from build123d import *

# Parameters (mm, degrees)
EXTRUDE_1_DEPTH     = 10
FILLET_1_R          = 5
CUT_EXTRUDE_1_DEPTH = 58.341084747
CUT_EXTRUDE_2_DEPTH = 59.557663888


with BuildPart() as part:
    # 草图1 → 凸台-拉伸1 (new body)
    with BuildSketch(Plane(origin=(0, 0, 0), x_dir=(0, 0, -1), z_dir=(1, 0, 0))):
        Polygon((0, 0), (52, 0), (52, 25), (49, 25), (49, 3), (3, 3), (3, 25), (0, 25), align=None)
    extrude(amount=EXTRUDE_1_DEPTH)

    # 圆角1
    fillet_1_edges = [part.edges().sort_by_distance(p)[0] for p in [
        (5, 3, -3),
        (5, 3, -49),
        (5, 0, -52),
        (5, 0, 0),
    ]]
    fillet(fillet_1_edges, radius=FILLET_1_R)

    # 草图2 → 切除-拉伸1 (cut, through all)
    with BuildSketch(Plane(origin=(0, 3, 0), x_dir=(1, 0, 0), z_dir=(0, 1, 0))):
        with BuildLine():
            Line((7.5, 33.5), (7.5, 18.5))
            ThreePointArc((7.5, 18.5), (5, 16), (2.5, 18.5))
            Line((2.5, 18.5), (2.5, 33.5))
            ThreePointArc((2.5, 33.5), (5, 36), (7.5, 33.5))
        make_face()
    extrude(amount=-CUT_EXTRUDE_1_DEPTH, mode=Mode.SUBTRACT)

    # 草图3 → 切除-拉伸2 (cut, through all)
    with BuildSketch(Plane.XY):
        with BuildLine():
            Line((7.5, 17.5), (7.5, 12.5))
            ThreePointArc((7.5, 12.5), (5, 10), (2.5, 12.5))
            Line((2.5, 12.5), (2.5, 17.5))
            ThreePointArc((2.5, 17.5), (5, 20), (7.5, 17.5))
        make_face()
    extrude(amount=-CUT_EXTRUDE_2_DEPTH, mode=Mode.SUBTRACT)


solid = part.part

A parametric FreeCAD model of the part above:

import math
import FreeCAD as App
import Part
import Sketcher

V = App.Vector
Q = App.Units.Quantity


def edges_at(feature, points):
    """Names of the edges that pass closest to the given points."""
    edges = feature.Shape.Edges
    near = lambda p: min(range(len(edges)), key=lambda i: edges[i].distToShape(Part.Vertex(*p))[0])
    return sorted({f"Edge{near(p) + 1}" for p in points})


def add_polygon(sketch, points):
    """Adds a closed chain of lines whose ends are joined by coincident constraints."""
    first, n = sketch.GeometryCount, len(points)
    for a, b in zip(points, points[1:] + points[:1]):
        sketch.addGeometry(Part.LineSegment(App.Vector(*a, 0), App.Vector(*b, 0)), False)
    for i in range(n):
        sketch.addConstraint(Sketcher.Constraint("Coincident", first + i, 2, first + (i + 1) % n, 1))

doc = App.newDocument("Part")
body = doc.addObject("PartDesign::Body", "Body")

# Sketch on YZ plane
sketch1 = body.newObject("Sketcher::SketchObject", "Sketch")
sketch1.AttachmentSupport = (doc.getObject("YZ_Plane"), [""])
sketch1.MapMode = "FlatFace"
add_polygon(sketch1, [(0, 0), (0, -52), (25, -52), (25, -49), (3, -49), (3, -3), (25, -3), (25, 0)])  # lines 0-7
sketch1.addConstraint([
    Sketcher.Constraint("Vertical", 0),
    Sketcher.Constraint("Horizontal", 1),
    Sketcher.Constraint("Vertical", 2),
    Sketcher.Constraint("Horizontal", 3),
    Sketcher.Constraint("Vertical", 4),
    Sketcher.Constraint("Horizontal", 5),
    Sketcher.Constraint("Vertical", 6),
    Sketcher.Constraint("Horizontal", 7),
    Sketcher.Constraint("Coincident", 7, 2, -1, 1),
    Sketcher.Constraint("Vertical", 2, 2, 5, 2),
    Sketcher.Constraint("Equal", 2, 6),
    Sketcher.Constraint("DistanceX", 1, 1, 1, 2, Q("25 mm")),
    Sketcher.Constraint("DistanceX", 3, 2, 3, 1, Q("22 mm")),
    Sketcher.Constraint("DistanceY", 0, 2, 0, 1, Q("52 mm")),
    Sketcher.Constraint("DistanceY", 2, 1, 2, 2, Q("3 mm")),
])
pad1 = body.newObject("PartDesign::Pad", "Pad")
pad1.Profile = sketch1
pad1.Length = 10
doc.recompute()

fillet = body.newObject("PartDesign::Fillet", "Fillet")
fillet.Base = (pad1, edges_at(pad1, [
    (5, 3, -3),
    (5, 3, -49),
    (5, 0, -52),
    (5, 0, 0),
]))
fillet.Radius = 5

# Sketch on XZ plane
sketch2 = body.newObject("Sketcher::SketchObject", "Sketch001")
sketch2.AttachmentSupport = (doc.getObject("XZ_Plane"), [""])
sketch2.MapMode = "FlatFace"
sketch2.AttachmentOffset = App.Placement(V(0, 0, -3), App.Rotation())
sketch2.addGeometry([
    Part.LineSegment(V(7.5, -18.5, 0), V(7.5, -33.5, 0)),
    Part.ArcOfCircle(Part.Circle(V(5, -33.5, 0), V(0, 0, 1), 2.5), math.radians(180), math.radians(360)),
    Part.LineSegment(V(2.5, -33.5, 0), V(2.5, -18.5, 0)),
    Part.ArcOfCircle(Part.Circle(V(5, -18.5, 0), V(0, 0, 1), 2.5), math.radians(0), math.radians(180)),
], False)
sketch2.addConstraint([
    Sketcher.Constraint("Tangent", 0, 2, 1, 2),
    Sketcher.Constraint("Tangent", 1, 1, 2, 1),
    Sketcher.Constraint("Tangent", 2, 2, 3, 2),
    Sketcher.Constraint("Tangent", 3, 1, 0, 1),
    Sketcher.Constraint("Vertical", 0),
    Sketcher.Constraint("Vertical", 2),
    Sketcher.Constraint("Radius", 1, Q("2.5 mm")),
    Sketcher.Constraint("DistanceY", 0, 2, 0, 1, Q("15 mm")),
    Sketcher.Constraint("DistanceX", -1, 1, 1, 3, Q("5 mm")),
    Sketcher.Constraint("DistanceY", 1, 3, -1, 1, Q("33.5 mm")),
])
pocket1 = body.newObject("PartDesign::Pocket", "Pocket")
pocket1.Profile = sketch2
pocket1.Type = "ThroughAll"
pocket1.Reversed = True

# Sketch on XY plane
sketch3 = body.newObject("Sketcher::SketchObject", "Sketch002")
sketch3.AttachmentSupport = (doc.getObject("XY_Plane"), [""])
sketch3.MapMode = "FlatFace"
sketch3.addGeometry([
    Part.LineSegment(V(7.5, 12.5, 0), V(7.5, 17.5, 0)),
    Part.ArcOfCircle(Part.Circle(V(5, 17.5, 0), V(0, 0, 1), 2.5), math.radians(0), math.radians(180)),
    Part.LineSegment(V(2.5, 17.5, 0), V(2.5, 12.5, 0)),
    Part.ArcOfCircle(Part.Circle(V(5, 12.5, 0), V(0, 0, 1), 2.5), math.radians(180), math.radians(360)),
], False)
sketch3.addConstraint([
    Sketcher.Constraint("Tangent", 0, 2, 1, 1),
    Sketcher.Constraint("Tangent", 1, 2, 2, 1),
    Sketcher.Constraint("Tangent", 2, 2, 3, 1),
    Sketcher.Constraint("Tangent", 3, 2, 0, 1),
    Sketcher.Constraint("Vertical", 0),
    Sketcher.Constraint("Vertical", 2),
    Sketcher.Constraint("Radius", 1, Q("2.5 mm")),
    Sketcher.Constraint("DistanceY", 0, 1, 0, 2, Q("5 mm")),
    Sketcher.Constraint("DistanceX", -1, 1, 1, 3, Q("5 mm")),
    Sketcher.Constraint("DistanceY", -1, 1, 1, 3, Q("17.5 mm")),
])
pocket2 = body.newObject("PartDesign::Pocket", "Pocket001")
pocket2.Profile = sketch3
pocket2.Type = "ThroughAll"

doc.recompute()
